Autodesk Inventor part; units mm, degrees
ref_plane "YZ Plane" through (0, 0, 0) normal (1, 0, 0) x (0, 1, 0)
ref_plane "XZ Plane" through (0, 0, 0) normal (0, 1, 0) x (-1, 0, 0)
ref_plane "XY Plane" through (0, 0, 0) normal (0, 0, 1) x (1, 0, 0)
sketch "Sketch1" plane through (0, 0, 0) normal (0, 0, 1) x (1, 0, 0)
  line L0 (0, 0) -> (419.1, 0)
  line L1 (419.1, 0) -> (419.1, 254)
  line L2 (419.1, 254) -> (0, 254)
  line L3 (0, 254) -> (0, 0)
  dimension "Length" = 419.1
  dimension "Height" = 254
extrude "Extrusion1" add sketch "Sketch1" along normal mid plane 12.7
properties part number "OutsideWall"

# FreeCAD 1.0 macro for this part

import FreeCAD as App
import Part
import Sketcher
Q = App.Units.Quantity


def add_polygon(sketch, points):
    """Adds a closed chain of lines whose ends are joined by coincident constraints."""
    first, n = sketch.GeometryCount, len(points)
    for a, b in zip(points, points[1:] + points[:1]):
        sketch.addGeometry(Part.LineSegment(App.Vector(*a, 0), App.Vector(*b, 0)), False)
    for i in range(n):
        sketch.addConstraint(Sketcher.Constraint("Coincident", first + i, 2, first + (i + 1) % n, 1))

doc = App.newDocument("Part")
body = doc.addObject("PartDesign::Body", "Body")

# Sketch on XY plane
sketch1 = doc.addObject("Sketcher::SketchObject", "Sketch")
body.addObject(sketch1)
sketch1.AttachmentSupport = (doc.XY_Plane, [""])
sketch1.MapMode = "FlatFace"
add_polygon(sketch1, [(0, 254), (0, 0), (419.1, 0), (419.1, 254)])  # lines 0-3
sketch1.addConstraint(Sketcher.Constraint("Vertical", 0))
sketch1.addConstraint(Sketcher.Constraint("Horizontal", 1))
sketch1.addConstraint(Sketcher.Constraint("Vertical", 2))
sketch1.addConstraint(Sketcher.Constraint("Horizontal", 3))
sketch1.addConstraint(Sketcher.Constraint("Coincident", 0, 2, -1, 1))
sketch1.addConstraint(Sketcher.Constraint("DistanceY", 0, 2, 0, 1, Q("10 in")))
sketch1.addConstraint(Sketcher.Constraint("DistanceX", 1, 1, 1, 2, Q("16.5 in")))
pad1 = doc.addObject("PartDesign::Pad", "Pad")
body.addObject(pad1)
pad1.Profile = sketch1
pad1.Length = Q("0.5 in")
pad1.Midplane = True

doc.recompute()
